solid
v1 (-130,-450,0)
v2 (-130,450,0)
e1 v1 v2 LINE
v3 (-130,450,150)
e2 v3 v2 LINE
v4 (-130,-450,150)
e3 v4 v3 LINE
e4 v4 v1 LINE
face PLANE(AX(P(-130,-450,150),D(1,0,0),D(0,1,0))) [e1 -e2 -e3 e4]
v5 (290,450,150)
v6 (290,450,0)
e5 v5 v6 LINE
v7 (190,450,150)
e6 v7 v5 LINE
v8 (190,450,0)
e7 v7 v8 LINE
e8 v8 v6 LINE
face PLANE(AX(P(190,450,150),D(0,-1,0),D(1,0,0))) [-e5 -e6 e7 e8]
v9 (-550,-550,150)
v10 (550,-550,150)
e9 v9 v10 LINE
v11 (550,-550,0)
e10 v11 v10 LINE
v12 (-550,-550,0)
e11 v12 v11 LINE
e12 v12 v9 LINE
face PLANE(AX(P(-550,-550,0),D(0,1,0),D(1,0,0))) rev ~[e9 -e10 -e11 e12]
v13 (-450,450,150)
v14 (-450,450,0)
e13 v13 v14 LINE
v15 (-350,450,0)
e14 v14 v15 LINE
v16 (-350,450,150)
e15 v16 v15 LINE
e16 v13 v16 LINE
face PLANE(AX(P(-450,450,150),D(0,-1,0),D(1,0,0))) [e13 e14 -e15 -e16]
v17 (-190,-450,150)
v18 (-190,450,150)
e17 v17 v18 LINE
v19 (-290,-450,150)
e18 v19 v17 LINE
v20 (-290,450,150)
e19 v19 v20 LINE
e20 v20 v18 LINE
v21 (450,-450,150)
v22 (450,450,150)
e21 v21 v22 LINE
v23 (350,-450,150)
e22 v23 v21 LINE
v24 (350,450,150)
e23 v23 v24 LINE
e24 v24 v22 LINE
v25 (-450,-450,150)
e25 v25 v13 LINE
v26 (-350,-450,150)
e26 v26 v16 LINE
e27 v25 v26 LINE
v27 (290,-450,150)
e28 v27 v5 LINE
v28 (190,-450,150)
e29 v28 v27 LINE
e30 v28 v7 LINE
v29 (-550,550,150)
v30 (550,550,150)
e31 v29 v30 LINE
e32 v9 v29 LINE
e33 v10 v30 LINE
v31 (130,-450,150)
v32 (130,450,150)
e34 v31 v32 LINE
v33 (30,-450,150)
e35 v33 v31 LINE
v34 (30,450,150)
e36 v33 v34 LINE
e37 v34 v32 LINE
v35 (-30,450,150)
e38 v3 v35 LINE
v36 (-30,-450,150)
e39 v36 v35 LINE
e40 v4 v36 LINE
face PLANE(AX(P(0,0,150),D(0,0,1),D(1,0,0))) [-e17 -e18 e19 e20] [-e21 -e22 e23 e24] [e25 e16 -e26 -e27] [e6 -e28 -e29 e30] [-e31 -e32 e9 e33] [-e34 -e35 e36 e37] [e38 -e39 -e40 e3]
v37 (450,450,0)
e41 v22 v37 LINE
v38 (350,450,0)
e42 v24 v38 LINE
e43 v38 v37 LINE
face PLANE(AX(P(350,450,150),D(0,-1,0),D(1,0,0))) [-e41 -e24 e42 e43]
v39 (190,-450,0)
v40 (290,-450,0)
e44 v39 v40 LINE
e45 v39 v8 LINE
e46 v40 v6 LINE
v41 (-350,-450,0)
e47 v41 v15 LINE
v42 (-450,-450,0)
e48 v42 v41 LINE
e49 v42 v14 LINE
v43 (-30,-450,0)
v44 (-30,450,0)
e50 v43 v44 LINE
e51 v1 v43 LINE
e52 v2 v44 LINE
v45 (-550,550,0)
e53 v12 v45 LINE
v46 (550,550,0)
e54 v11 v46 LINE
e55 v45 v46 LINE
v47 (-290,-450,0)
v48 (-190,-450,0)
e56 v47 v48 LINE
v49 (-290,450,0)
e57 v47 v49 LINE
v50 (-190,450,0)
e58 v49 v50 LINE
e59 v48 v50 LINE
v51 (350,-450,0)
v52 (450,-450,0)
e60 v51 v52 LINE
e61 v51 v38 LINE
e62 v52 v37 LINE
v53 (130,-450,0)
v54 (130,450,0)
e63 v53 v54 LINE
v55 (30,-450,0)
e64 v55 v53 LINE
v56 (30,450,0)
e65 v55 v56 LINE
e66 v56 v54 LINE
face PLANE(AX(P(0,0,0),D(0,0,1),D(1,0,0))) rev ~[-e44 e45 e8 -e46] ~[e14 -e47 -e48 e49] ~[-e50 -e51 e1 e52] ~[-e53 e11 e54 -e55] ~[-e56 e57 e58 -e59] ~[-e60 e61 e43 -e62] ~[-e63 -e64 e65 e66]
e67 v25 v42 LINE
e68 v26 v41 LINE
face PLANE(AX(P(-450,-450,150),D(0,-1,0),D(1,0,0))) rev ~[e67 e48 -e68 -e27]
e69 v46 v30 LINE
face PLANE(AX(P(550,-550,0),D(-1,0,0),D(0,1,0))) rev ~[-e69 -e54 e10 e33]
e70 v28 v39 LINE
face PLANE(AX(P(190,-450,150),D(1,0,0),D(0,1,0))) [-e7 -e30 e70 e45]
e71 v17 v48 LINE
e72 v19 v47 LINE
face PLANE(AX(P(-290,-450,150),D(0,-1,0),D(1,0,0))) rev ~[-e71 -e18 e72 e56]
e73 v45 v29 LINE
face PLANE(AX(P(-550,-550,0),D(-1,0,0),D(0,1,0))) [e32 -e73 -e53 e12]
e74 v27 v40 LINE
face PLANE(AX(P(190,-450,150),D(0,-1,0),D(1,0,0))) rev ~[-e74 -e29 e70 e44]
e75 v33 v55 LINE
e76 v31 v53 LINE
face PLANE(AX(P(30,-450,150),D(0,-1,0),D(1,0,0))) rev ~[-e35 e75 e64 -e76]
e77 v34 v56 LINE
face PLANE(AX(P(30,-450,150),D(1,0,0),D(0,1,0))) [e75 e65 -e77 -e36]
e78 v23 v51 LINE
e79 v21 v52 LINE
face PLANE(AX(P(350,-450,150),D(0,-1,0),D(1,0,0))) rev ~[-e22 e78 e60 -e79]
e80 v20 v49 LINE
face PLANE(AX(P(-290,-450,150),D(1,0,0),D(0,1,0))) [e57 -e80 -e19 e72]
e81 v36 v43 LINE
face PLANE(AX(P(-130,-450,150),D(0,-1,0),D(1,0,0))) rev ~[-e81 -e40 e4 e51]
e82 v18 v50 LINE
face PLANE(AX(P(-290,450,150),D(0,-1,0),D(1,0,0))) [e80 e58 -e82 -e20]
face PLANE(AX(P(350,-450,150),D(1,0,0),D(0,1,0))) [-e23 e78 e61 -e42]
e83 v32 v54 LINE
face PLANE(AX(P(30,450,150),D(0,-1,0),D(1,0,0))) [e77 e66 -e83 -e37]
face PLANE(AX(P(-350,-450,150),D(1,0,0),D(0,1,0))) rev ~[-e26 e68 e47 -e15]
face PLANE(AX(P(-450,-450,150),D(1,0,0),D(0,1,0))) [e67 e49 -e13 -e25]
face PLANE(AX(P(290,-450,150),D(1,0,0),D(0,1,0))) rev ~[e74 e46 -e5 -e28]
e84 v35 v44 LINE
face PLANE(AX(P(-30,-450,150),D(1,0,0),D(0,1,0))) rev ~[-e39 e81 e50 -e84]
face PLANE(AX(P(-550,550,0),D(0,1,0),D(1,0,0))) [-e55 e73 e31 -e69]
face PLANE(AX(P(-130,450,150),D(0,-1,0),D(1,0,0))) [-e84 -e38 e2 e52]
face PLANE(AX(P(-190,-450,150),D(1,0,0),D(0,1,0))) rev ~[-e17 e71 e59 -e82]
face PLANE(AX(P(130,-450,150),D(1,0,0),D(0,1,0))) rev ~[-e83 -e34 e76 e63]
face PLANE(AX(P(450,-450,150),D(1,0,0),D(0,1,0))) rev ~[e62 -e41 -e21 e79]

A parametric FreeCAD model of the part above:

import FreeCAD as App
import Part
import Sketcher

V = App.Vector

doc = App.newDocument("Part")
params = doc.addObject("Spreadsheet::Sheet", "Params")
for row, (alias, value) in enumerate([
    ("sketch1_width", "1100 mm"),
    ("pad1_length", "150 mm"),
    ("sketch2_width", "100 mm"),
    ("sketch2_height", "900 mm"),
    ("pocket1_length", "150 mm"),
], start=1):
    params.set(f"A{row}", alias)
    params.set(f"B{row}", "=" + value)
    params.setAlias(f"B{row}", alias)

body = doc.addObject("PartDesign::Body", "Body")

# Sketch on XY plane
sketch1 = doc.addObject("Sketcher::SketchObject", "Sketch")
body.addObject(sketch1)
sketch1.AttachmentSupport = (doc.XY_Plane, [""])
sketch1.MapMode = "FlatFace"
sketch1.addGeometry([
    Part.LineSegment(V(-550, 550, 0), V(-550, -550, 0)),
    Part.LineSegment(V(-550, -550, 0), V(550, -550, 0)),
    Part.LineSegment(V(550, -550, 0), V(550, 550, 0)),
    Part.LineSegment(V(550, 550, 0), V(-550, 550, 0)),
], False)
sketch1.addConstraint([
    Sketcher.Constraint("Coincident", 0, 2, 1, 1),
    Sketcher.Constraint("Coincident", 1, 2, 2, 1),
    Sketcher.Constraint("Coincident", 2, 2, 3, 1),
    Sketcher.Constraint("Coincident", 3, 2, 0, 1),
    Sketcher.Constraint("Vertical", 0),
    Sketcher.Constraint("Horizontal", 1),
    Sketcher.Constraint("Vertical", 2),
    Sketcher.Constraint("Horizontal", 3),
    Sketcher.Constraint("Symmetric", 0, 2, 2, 2, -1, 1),
    Sketcher.Constraint("Equal", 3, 0),
    Sketcher.Constraint("DistanceX", 1, 1, 1, 2, 1100.0),
])
sketch1.setExpression("Constraints[10]", "Params.sketch1_width")
pad1 = doc.addObject("PartDesign::Pad", "Pad")
body.addObject(pad1)
pad1.Profile = sketch1
pad1.setExpression("Length", "Params.pad1_length")

# Sketch on XY plane
sketch2 = doc.addObject("Sketcher::SketchObject", "Sketch001")
body.addObject(sketch2)
sketch2.AttachmentSupport = (doc.XY_Plane, [""])
sketch2.MapMode = "FlatFace"
sketch2.AttachmentOffset = App.Placement(V(0, 0, 150), App.Rotation())
sketch2.addGeometry([
    Part.LineSegment(V(-450, 450, 0), V(-450, -450, 0)),  # 0
    Part.LineSegment(V(-450, -450, 0), V(-350, -450, 0)),  # 1
    Part.LineSegment(V(-350, -450, 0), V(-350, 450, 0)),  # 2
    Part.LineSegment(V(-350, 450, 0), V(-450, 450, 0)),  # 3
    Part.LineSegment(V(-290, 450, 0), V(-290, -450, 0)),  # 4
    Part.LineSegment(V(-290, -450, 0), V(-190, -450, 0)),  # 5
    Part.LineSegment(V(-190, -450, 0), V(-190, 450, 0)),  # 6
    Part.LineSegment(V(-190, 450, 0), V(-290, 450, 0)),  # 7
    Part.LineSegment(V(-130, 450, 0), V(-130, -450, 0)),  # 8
    Part.LineSegment(V(-130, -450, 0), V(-30, -450, 0)),  # 9
    Part.LineSegment(V(-30, -450, 0), V(-30, 450, 0)),  # 10
    Part.LineSegment(V(-30, 450, 0), V(-130, 450, 0)),  # 11
    Part.LineSegment(V(30, 450, 0), V(30, -450, 0)),  # 12
    Part.LineSegment(V(30, -450, 0), V(130, -450, 0)),  # 13
    Part.LineSegment(V(130, -450, 0), V(130, 450, 0)),  # 14
    Part.LineSegment(V(130, 450, 0), V(30, 450, 0)),  # 15
    Part.LineSegment(V(190, 450, 0), V(190, -450, 0)),  # 16
    Part.LineSegment(V(190, -450, 0), V(290, -450, 0)),  # 17
    Part.LineSegment(V(290, -450, 0), V(290, 450, 0)),  # 18
    Part.LineSegment(V(290, 450, 0), V(190, 450, 0)),  # 19
    Part.LineSegment(V(350, 450, 0), V(350, -450, 0)),  # 20
    Part.LineSegment(V(350, -450, 0), V(450, -450, 0)),  # 21
    Part.LineSegment(V(450, -450, 0), V(450, 450, 0)),  # 22
    Part.LineSegment(V(450, 450, 0), V(350, 450, 0)),  # 23
], False)
sketch2.addConstraint([
    Sketcher.Constraint("Coincident", 0, 2, 1, 1),
    Sketcher.Constraint("Coincident", 1, 2, 2, 1),
    Sketcher.Constraint("Coincident", 2, 2, 3, 1),
    Sketcher.Constraint("Coincident", 3, 2, 0, 1),
    Sketcher.Constraint("Coincident", 4, 2, 5, 1),
    Sketcher.Constraint("Coincident", 5, 2, 6, 1),
    Sketcher.Constraint("Coincident", 6, 2, 7, 1),
    Sketcher.Constraint("Coincident", 7, 2, 4, 1),
    Sketcher.Constraint("Coincident", 8, 2, 9, 1),
    Sketcher.Constraint("Coincident", 9, 2, 10, 1),
    Sketcher.Constraint("Coincident", 10, 2, 11, 1),
    Sketcher.Constraint("Coincident", 11, 2, 8, 1),
    Sketcher.Constraint("Coincident", 12, 2, 13, 1),
    Sketcher.Constraint("Coincident", 13, 2, 14, 1),
    Sketcher.Constraint("Coincident", 14, 2, 15, 1),
    Sketcher.Constraint("Coincident", 15, 2, 12, 1),
    Sketcher.Constraint("Coincident", 16, 2, 17, 1),
    Sketcher.Constraint("Coincident", 17, 2, 18, 1),
    Sketcher.Constraint("Coincident", 18, 2, 19, 1),
    Sketcher.Constraint("Coincident", 19, 2, 16, 1),
    Sketcher.Constraint("Coincident", 20, 2, 21, 1),
    Sketcher.Constraint("Coincident", 21, 2, 22, 1),
    Sketcher.Constraint("Coincident", 22, 2, 23, 1),
    Sketcher.Constraint("Coincident", 23, 2, 20, 1),
    Sketcher.Constraint("Vertical", 0),
    Sketcher.Constraint("Horizontal", 1),
    Sketcher.Constraint("Vertical", 2),
    Sketcher.Constraint("Horizontal", 3),
    Sketcher.Constraint("Vertical", 4),
    Sketcher.Constraint("Horizontal", 5),
    Sketcher.Constraint("Vertical", 6),
    Sketcher.Constraint("Horizontal", 7),
    Sketcher.Constraint("Vertical", 8),
    Sketcher.Constraint("Horizontal", 9),
    Sketcher.Constraint("Vertical", 10),
    Sketcher.Constraint("Horizontal", 11),
    Sketcher.Constraint("Vertical", 12),
    Sketcher.Constraint("Horizontal", 13),
    Sketcher.Constraint("Vertical", 14),
    Sketcher.Constraint("Horizontal", 15),
    Sketcher.Constraint("Vertical", 16),
    Sketcher.Constraint("Horizontal", 17),
    Sketcher.Constraint("Vertical", 18),
    Sketcher.Constraint("Horizontal", 19),
    Sketcher.Constraint("Vertical", 20),
    Sketcher.Constraint("Horizontal", 21),
    Sketcher.Constraint("Vertical", 22),
    Sketcher.Constraint("Horizontal", 23),
    Sketcher.Constraint("Symmetric", 10, 2, 12, 2, -1, 1),
    Sketcher.Constraint("Symmetric", 8, 2, 14, 2, -1, 1),
    Sketcher.Constraint("Symmetric", 6, 2, 16, 2, -1, 1),
    Sketcher.Constraint("Symmetric", 4, 2, 18, 2, -1, 1),
    Sketcher.Constraint("Symmetric", 2, 2, 20, 2, -1, 1),
    Sketcher.Constraint("Symmetric", 0, 2, 22, 2, -1, 1),
    Sketcher.Constraint("Horizontal", 1, 2, 4, 2),
    Sketcher.Constraint("Horizontal", 3, 2, 6, 2),
    Sketcher.Constraint("Horizontal", 5, 2, 8, 2),
    Sketcher.Constraint("Horizontal", 7, 2, 10, 2),
    Sketcher.Constraint("Horizontal", 9, 2, 12, 2),
    Sketcher.Constraint("Equal", 3, 5),
    Sketcher.Constraint("Equal", 7, 9),
    Sketcher.Constraint("DistanceX", 1, 1, 1, 2, 100.0),
    Sketcher.Constraint("DistanceY", 0, 2, 0, 1, 900.0),
    Sketcher.Constraint("DistanceX", 0, 2, -1, 1, 450.0),
    Sketcher.Constraint("DistanceX", 4, 2, -1, 1, 290.0),
    Sketcher.Constraint("DistanceX", 8, 2, -1, 1, 130.0),
])
sketch2.setExpression("Constraints[61]", "Params.sketch2_width")
sketch2.setExpression("Constraints[62]", "Params.sketch2_height")
pocket1 = doc.addObject("PartDesign::Pocket", "Pocket")
body.addObject(pocket1)
pocket1.Profile = sketch2
pocket1.setExpression("Length", "Params.pocket1_length")

doc.recompute()
